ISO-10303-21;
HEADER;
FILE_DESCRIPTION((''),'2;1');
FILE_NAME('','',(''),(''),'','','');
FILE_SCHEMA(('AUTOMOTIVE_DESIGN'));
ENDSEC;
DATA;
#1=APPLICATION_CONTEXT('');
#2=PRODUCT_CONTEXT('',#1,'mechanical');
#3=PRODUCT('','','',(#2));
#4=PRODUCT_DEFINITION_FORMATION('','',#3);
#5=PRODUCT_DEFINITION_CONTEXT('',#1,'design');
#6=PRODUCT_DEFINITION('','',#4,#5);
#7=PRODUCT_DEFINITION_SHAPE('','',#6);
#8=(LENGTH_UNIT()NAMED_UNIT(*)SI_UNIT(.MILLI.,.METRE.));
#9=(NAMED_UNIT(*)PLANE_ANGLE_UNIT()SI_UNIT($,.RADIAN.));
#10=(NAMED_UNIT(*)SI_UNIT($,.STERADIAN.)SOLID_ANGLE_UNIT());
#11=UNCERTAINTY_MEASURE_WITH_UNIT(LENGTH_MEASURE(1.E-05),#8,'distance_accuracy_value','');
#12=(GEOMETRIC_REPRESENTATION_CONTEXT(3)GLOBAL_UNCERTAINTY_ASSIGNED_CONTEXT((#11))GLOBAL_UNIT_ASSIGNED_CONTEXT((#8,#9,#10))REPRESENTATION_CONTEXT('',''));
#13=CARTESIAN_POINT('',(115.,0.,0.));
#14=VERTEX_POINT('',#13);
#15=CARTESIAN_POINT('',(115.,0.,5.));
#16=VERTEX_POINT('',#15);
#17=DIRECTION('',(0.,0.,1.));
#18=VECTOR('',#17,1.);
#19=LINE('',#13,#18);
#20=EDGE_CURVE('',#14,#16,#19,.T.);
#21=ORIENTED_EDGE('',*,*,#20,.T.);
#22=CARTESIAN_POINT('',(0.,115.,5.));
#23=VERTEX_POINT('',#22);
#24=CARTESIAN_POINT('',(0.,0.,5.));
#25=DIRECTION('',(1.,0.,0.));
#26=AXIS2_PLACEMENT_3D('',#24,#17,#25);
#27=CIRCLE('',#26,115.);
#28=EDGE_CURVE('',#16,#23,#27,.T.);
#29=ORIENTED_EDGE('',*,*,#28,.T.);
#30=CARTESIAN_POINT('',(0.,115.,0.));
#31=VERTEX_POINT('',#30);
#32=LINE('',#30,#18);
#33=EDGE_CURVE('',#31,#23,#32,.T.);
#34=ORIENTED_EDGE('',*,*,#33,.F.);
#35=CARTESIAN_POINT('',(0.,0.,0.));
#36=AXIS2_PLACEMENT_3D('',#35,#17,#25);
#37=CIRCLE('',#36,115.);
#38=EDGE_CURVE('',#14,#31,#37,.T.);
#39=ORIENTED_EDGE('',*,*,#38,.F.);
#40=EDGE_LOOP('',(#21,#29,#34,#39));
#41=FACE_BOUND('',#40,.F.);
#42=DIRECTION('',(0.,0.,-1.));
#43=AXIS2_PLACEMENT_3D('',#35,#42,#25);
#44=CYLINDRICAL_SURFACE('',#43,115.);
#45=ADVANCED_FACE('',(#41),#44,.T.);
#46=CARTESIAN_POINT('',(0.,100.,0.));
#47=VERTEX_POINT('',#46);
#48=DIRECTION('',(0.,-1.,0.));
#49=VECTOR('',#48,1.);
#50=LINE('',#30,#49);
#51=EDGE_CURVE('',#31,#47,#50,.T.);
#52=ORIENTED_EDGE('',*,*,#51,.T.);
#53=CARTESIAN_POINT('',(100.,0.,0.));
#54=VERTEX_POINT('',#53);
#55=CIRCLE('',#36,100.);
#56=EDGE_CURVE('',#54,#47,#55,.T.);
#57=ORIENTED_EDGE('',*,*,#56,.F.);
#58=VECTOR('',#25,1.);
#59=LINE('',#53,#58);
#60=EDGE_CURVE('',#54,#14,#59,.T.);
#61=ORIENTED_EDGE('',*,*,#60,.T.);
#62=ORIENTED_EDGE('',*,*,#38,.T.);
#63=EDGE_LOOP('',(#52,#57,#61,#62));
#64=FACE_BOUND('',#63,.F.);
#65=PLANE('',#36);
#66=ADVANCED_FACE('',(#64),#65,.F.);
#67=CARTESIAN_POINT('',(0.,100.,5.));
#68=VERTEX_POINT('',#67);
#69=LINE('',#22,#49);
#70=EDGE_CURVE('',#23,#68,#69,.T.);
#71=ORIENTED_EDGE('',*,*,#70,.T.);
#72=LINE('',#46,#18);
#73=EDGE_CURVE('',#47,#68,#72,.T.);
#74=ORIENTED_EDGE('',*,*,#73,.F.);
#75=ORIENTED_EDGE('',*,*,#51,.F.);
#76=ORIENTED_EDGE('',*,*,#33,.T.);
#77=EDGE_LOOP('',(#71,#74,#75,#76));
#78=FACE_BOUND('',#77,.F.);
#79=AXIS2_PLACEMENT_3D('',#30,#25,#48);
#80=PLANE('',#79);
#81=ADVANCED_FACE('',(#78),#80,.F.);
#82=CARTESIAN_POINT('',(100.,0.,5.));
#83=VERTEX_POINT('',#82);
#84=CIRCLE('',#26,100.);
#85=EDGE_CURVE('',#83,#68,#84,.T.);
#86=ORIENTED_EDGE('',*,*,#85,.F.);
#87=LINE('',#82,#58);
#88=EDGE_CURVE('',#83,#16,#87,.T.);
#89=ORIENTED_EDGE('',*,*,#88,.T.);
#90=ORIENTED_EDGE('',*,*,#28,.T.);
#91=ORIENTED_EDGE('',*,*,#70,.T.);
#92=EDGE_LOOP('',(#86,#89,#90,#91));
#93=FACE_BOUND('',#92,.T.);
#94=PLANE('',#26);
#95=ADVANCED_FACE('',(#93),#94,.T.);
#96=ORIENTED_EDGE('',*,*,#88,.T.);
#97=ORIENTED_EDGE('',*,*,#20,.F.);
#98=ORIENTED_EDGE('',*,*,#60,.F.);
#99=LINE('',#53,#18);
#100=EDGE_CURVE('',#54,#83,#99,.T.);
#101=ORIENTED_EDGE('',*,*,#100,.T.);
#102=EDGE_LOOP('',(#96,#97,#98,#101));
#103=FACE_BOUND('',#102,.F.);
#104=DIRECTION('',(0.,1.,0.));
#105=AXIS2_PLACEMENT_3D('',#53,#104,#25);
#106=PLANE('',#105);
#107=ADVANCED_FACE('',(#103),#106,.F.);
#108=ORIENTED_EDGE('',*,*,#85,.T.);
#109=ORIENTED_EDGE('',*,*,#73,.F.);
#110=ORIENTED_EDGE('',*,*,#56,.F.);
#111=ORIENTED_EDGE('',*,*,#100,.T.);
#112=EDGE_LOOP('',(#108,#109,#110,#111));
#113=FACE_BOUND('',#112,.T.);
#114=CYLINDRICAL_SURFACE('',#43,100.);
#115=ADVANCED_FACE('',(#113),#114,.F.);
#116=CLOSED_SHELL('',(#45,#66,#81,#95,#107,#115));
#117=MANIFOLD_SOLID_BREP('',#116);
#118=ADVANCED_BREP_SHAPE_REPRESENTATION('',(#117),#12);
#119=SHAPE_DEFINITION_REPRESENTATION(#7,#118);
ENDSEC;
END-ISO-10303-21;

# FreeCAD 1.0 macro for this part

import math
import FreeCAD as App
import Part
import Sketcher
Q = App.Units.Quantity

doc = App.newDocument("Part")
params = doc.addObject("Spreadsheet::Sheet", "Params")
for row, (alias, value) in enumerate([
    ("sketch1_radius", "100 mm"),
    ("sketch1_radius2", "115 mm"),
    ("pad1_length", "5 mm"),
], start=1):
    params.set(f"A{row}", alias)
    params.set(f"B{row}", "=" + value)
    params.setAlias(f"B{row}", alias)

body = doc.addObject("PartDesign::Body", "Body")

# Sketch on XY plane
sketch1 = doc.addObject("Sketcher::SketchObject", "Sketch")
body.addObject(sketch1)
sketch1.AttachmentSupport = (doc.XY_Plane, [""])
sketch1.MapMode = "FlatFace"
sketch1.addGeometry([
    Part.ArcOfCircle(Part.Circle(App.Vector(0, 0, 0), App.Vector(0, 0, 1), 100), math.radians(0), math.radians(90)),
    Part.LineSegment(App.Vector(100, 0, 0), App.Vector(115, 0, 0)),
    Part.ArcOfCircle(Part.Circle(App.Vector(0, 0, 0), App.Vector(0, 0, 1), 115), math.radians(0), math.radians(90)),
    Part.LineSegment(App.Vector(0, 115, 0), App.Vector(0, 100, 0)),
], False)
sketch1.addConstraint([
    Sketcher.Constraint("Coincident", 0, 1, 1, 1),
    Sketcher.Constraint("Coincident", 1, 2, 2, 1),
    Sketcher.Constraint("Coincident", 2, 2, 3, 1),
    Sketcher.Constraint("Coincident", 3, 2, 0, 2),
    Sketcher.Constraint("Horizontal", 1),
    Sketcher.Constraint("Vertical", 3),
    Sketcher.Constraint("Coincident", 0, 3, -1, 1),
    Sketcher.Constraint("Coincident", 2, 3, -1, 1),
    Sketcher.Constraint("PointOnObject", 0, 1, -1),
    Sketcher.Constraint("PointOnObject", 2, 2, -2),
    Sketcher.Constraint("Radius", 0, Q("100 mm")),
    Sketcher.Constraint("Radius", 2, Q("115 mm")),
])
sketch1.setExpression("Constraints[10]", "Params.sketch1_radius")
sketch1.setExpression("Constraints[11]", "Params.sketch1_radius2")
pad1 = doc.addObject("PartDesign::Pad", "Pad")
body.addObject(pad1)
pad1.Profile = sketch1
pad1.setExpression("Length", "Params.pad1_length")

doc.recompute()
